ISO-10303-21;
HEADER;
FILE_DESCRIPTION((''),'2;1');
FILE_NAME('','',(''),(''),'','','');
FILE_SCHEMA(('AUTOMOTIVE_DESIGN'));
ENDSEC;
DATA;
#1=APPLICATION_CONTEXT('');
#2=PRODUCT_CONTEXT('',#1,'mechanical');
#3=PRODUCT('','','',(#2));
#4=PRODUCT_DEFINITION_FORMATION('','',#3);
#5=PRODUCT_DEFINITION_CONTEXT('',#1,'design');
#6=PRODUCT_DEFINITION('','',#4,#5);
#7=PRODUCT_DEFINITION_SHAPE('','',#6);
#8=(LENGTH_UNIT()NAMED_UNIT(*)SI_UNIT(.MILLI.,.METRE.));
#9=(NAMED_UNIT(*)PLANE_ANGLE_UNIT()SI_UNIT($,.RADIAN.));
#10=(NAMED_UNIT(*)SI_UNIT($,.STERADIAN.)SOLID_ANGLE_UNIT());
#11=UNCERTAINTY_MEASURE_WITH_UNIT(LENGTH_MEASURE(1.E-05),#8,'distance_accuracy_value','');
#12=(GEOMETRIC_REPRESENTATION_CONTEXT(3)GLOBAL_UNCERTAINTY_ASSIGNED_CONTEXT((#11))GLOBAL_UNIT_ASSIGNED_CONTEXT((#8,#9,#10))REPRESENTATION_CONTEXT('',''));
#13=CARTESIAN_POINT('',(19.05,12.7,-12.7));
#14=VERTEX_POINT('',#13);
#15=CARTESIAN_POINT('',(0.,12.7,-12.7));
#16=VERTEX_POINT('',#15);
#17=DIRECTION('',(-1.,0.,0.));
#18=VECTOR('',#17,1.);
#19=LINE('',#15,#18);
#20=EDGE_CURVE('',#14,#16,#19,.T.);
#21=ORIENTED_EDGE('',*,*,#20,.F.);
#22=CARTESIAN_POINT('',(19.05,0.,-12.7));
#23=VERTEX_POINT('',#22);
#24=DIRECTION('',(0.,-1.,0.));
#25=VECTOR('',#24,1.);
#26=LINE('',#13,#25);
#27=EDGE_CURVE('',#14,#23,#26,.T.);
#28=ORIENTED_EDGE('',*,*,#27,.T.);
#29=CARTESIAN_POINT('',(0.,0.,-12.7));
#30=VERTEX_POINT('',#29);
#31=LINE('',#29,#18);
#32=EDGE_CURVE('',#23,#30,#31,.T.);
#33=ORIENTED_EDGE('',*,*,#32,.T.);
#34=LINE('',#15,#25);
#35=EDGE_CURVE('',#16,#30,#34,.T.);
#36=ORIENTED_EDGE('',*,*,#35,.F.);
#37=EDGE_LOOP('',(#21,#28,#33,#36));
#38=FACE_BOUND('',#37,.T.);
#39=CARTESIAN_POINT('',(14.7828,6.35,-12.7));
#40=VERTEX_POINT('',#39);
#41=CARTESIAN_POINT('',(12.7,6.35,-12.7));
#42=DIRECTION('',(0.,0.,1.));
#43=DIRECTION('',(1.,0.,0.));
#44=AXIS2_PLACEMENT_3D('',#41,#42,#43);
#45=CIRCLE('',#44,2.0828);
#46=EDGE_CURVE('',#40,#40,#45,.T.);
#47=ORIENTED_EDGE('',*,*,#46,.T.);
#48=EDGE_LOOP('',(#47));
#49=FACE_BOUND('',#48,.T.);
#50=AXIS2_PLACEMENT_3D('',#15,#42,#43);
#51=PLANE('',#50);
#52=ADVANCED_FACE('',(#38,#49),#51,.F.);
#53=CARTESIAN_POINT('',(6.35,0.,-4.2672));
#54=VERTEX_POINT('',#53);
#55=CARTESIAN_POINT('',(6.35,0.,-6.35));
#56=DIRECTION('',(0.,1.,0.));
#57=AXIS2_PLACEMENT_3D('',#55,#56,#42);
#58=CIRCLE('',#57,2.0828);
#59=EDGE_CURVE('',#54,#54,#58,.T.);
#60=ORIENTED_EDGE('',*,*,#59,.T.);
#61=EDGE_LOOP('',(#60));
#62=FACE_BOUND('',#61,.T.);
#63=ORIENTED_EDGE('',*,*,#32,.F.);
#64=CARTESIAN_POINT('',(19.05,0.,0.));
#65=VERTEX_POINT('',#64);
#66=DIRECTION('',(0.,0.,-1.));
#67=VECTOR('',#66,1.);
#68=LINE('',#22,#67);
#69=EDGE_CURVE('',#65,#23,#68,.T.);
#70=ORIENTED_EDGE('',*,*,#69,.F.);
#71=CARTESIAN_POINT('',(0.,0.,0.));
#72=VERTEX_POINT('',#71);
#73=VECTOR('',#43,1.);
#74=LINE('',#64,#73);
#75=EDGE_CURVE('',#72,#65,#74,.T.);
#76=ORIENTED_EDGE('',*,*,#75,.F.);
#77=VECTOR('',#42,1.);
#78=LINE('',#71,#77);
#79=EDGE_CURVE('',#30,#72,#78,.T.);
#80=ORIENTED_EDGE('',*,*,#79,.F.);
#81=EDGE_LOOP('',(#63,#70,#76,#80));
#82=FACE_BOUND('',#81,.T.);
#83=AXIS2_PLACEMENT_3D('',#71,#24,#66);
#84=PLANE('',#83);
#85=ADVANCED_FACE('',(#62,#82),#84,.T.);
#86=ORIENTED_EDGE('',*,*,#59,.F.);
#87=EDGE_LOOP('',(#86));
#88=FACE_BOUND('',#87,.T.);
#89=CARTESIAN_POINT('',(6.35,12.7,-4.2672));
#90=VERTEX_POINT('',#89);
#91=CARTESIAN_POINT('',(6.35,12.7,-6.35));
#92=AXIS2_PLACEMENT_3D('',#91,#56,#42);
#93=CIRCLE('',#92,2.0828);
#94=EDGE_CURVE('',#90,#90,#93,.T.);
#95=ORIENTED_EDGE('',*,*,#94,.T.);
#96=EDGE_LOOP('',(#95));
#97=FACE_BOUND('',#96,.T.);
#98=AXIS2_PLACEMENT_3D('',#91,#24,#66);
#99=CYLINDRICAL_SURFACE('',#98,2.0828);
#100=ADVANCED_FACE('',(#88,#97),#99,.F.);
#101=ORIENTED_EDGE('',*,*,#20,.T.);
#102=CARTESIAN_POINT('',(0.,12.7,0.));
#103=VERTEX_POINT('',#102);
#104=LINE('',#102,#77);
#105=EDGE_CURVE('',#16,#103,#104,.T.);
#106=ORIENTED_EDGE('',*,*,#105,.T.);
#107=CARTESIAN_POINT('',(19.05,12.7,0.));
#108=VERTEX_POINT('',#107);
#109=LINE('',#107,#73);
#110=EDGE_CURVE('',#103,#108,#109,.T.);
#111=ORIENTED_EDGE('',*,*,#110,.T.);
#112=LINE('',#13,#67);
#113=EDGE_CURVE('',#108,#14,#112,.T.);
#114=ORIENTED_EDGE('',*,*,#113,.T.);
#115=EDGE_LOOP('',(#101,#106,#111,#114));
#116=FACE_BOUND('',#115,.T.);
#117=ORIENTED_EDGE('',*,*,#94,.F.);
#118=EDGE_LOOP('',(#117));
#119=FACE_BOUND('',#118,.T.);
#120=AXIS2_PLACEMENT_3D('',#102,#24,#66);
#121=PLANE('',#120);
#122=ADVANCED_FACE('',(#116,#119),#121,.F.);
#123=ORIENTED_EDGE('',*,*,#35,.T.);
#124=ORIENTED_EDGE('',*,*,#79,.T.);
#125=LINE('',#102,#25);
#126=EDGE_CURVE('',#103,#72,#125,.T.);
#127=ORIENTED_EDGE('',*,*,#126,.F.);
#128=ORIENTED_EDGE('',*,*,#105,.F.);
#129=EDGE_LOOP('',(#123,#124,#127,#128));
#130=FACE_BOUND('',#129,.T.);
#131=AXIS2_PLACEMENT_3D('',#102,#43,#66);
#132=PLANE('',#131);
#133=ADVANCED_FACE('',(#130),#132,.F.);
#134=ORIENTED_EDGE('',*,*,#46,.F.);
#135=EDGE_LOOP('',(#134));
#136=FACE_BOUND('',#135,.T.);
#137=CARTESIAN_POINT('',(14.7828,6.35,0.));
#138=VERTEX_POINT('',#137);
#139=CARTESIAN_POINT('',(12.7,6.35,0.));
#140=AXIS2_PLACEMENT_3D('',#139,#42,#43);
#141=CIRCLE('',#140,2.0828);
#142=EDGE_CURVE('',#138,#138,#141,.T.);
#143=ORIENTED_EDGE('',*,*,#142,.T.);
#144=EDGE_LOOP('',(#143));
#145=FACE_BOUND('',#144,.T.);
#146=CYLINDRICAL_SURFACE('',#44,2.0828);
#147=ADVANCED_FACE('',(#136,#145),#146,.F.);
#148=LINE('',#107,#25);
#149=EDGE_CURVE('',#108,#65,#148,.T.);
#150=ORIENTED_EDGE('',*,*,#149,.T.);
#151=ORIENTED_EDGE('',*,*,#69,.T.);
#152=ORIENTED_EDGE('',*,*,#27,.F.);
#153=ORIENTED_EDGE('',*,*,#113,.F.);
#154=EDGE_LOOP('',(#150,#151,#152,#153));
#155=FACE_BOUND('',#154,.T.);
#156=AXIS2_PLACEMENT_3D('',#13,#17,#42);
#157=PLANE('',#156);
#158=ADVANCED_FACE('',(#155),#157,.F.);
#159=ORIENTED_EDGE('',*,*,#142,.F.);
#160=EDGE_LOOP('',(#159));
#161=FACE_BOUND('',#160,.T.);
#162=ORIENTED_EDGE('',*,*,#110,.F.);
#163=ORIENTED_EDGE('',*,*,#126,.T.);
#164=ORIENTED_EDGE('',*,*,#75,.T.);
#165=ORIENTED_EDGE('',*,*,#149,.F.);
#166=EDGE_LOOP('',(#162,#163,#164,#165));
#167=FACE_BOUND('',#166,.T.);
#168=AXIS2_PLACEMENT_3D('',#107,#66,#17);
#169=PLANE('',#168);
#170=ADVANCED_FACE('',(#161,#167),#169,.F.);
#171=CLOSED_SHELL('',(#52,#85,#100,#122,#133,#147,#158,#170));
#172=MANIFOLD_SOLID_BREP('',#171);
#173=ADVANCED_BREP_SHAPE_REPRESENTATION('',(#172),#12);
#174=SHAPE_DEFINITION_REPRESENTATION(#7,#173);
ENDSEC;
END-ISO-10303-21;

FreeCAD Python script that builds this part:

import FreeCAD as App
import Part
import Sketcher
from FreeCAD import Vector
Q = App.Units.Quantity

doc = App.newDocument("Part")
params = doc.addObject("Spreadsheet::Sheet", "Params")
for row, (alias, value) in enumerate([
    ("sketch1_diameter", "0.164 in"),
    ("sketch1_height", "0.5 in"),
    ("sketch1_width", "0.75 in"),
    ("pad1_length", "0.5 in"),
    ("sketch2_diameter", "0.164 in"),
    ("pocket1_length", "0.5 in"),
], start=1):
    params.set(f"A{row}", alias)
    params.set(f"B{row}", "=" + value)
    params.setAlias(f"B{row}", alias)

body = doc.addObject("PartDesign::Body", "Body")

# Sketch on XZ plane
sketch1 = body.newObject("Sketcher::SketchObject", "Sketch")
sketch1.AttachmentSupport = (doc.getObject("XZ_Plane"), [""])
sketch1.MapMode = "FlatFace"
sketch1.addGeometry([
    Part.LineSegment(Vector(0, -12.7, 0), Vector(0, 0, 0)),  # 0
    Part.LineSegment(Vector(0, 0, 0), Vector(19.1, 0, 0)),  # 1
    Part.LineSegment(Vector(19.1, 0, 0), Vector(19.1, -12.7, 0)),  # 2
    Part.LineSegment(Vector(19.1, -12.7, 0), Vector(0, -12.7, 0)),  # 3
    Part.Circle(Vector(6.3, -6.3, 0), Vector(0, 0, 1), 2.1),  # 4
], False)
sketch1.addConstraint([
    Sketcher.Constraint("Coincident", 0, 2, 1, 1),
    Sketcher.Constraint("Coincident", 1, 2, 2, 1),
    Sketcher.Constraint("Coincident", 2, 2, 3, 1),
    Sketcher.Constraint("Coincident", 3, 2, 0, 1),
    Sketcher.Constraint("Vertical", 0),
    Sketcher.Constraint("Horizontal", 1),
    Sketcher.Constraint("Vertical", 2),
    Sketcher.Constraint("Horizontal", 3),
    Sketcher.Constraint("Coincident", 0, 2, -1, 1),
    Sketcher.Constraint("Diameter", 4, Q("0.164 in")),
    Sketcher.Constraint("DistanceY", 0, 1, 0, 2, Q("0.5 in")),
    Sketcher.Constraint("DistanceX", 1, 1, 1, 2, Q("0.75 in")),
    Sketcher.Constraint("DistanceX", 4, 3, 1, 2, Q("0.5 in")),
    Sketcher.Constraint("DistanceY", 4, 3, -1, 1, Q("0.25 in")),
])
sketch1.setExpression("Constraints[9]", "Params.sketch1_diameter")
sketch1.setExpression("Constraints[10]", "Params.sketch1_height")
sketch1.setExpression("Constraints[11]", "Params.sketch1_width")
pad1 = body.newObject("PartDesign::Pad", "Pad")
pad1.Profile = sketch1
pad1.setExpression("Length", "Params.pad1_length")
pad1.Reversed = True

# Sketch on XY plane
sketch2 = body.newObject("Sketcher::SketchObject", "Sketch001")
sketch2.AttachmentSupport = (doc.getObject("XY_Plane"), [""])
sketch2.MapMode = "FlatFace"
sketch2.addGeometry(Part.Circle(Vector(12.7, 6.3, 0), Vector(0, 0, 1), 2.1), False)
sketch2.addConstraint([
    Sketcher.Constraint("Diameter", 0, Q("0.164 in")),
    Sketcher.Constraint("DistanceX", -1, 1, 0, 3, Q("0.5 in")),
    Sketcher.Constraint("DistanceY", -1, 1, 0, 3, Q("0.25 in")),
])
sketch2.setExpression("Constraints[0]", "Params.sketch2_diameter")
pocket1 = body.newObject("PartDesign::Pocket", "Pocket")
pocket1.Profile = sketch2
pocket1.setExpression("Length", "Params.pocket1_length")

doc.recompute()
